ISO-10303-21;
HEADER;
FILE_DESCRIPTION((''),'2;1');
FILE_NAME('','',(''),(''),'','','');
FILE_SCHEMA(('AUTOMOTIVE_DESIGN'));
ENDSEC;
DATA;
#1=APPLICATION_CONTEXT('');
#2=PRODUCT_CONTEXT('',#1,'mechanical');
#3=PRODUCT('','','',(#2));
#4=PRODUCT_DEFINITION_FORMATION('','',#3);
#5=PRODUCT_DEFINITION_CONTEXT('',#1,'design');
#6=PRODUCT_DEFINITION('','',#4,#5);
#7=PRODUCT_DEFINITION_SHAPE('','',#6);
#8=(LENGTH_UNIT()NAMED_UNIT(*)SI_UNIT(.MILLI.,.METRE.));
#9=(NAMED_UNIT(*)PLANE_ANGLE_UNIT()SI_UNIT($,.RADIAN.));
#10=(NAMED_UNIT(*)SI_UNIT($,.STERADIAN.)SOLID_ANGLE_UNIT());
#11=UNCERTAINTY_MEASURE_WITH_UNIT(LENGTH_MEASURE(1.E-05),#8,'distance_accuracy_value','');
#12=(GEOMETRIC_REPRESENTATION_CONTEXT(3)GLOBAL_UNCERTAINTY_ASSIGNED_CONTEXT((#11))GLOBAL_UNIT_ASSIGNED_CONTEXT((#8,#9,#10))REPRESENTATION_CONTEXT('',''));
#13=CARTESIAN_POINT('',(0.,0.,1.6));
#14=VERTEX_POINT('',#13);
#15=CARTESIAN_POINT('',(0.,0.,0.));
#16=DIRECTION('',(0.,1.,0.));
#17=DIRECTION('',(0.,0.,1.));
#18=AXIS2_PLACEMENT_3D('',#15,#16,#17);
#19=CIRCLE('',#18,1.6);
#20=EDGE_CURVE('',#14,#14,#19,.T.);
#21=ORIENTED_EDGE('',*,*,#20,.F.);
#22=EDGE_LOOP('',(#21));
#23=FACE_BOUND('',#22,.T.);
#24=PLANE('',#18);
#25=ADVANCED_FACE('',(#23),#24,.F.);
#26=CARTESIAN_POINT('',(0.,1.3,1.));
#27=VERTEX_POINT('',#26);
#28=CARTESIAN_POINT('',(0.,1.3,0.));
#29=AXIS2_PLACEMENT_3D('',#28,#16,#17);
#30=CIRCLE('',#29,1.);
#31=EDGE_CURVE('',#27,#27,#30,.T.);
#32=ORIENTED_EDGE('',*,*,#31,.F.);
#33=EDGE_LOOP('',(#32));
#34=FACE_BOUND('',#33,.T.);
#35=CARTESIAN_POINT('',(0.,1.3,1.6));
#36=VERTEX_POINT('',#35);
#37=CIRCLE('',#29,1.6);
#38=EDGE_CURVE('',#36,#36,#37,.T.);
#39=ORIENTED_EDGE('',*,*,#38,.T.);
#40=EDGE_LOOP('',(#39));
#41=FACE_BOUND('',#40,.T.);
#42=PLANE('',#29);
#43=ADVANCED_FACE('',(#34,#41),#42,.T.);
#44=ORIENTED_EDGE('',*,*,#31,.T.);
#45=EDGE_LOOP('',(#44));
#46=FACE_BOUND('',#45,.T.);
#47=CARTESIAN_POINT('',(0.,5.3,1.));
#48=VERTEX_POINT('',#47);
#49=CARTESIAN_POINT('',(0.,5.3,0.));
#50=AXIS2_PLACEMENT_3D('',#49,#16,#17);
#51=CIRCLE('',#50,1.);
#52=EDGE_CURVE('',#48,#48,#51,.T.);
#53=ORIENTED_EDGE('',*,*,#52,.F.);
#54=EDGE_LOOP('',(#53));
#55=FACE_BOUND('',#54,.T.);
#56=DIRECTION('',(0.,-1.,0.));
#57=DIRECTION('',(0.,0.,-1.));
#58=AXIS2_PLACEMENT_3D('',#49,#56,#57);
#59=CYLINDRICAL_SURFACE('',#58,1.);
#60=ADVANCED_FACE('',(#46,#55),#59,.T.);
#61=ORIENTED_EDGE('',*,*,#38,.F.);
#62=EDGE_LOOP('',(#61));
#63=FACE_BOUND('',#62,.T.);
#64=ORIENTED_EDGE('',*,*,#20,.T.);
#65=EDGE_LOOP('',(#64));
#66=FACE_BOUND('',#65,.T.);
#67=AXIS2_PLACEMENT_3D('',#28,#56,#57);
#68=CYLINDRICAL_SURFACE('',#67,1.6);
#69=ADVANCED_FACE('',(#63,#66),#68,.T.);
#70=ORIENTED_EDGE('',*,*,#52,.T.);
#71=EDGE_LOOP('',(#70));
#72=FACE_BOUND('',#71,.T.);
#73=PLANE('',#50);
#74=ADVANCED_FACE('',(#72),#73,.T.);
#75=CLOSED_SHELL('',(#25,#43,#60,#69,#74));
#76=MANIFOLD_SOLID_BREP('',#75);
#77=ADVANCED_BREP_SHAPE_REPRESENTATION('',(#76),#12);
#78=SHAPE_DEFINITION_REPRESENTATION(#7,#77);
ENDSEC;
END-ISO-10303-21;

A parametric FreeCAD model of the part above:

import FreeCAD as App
import Part
import Sketcher

doc = App.newDocument("Part")
body = doc.addObject("PartDesign::Body", "Body")

sketch1 = doc.addObject("Sketcher::SketchObject", "Sketch")
body.addObject(sketch1)
sketch1.AttachmentSupport = (doc.XZ_Plane, [""])
sketch1.MapMode = "FlatFace"
sketch1.addGeometry(Part.Circle(App.Vector(0, 0, 0), App.Vector(0, 0, 1), 1.6), False)
sketch1.addConstraint(Sketcher.Constraint("Coincident", 0, 3, -1, 1))
sketch1.addConstraint(Sketcher.Constraint("Diameter", 0, 3.2))
pad1 = doc.addObject("PartDesign::Pad", "Pad")
body.addObject(pad1)
pad1.Profile = sketch1
pad1.Length = 1.3
pad1.Reversed = True

sketch2 = doc.addObject("Sketcher::SketchObject", "Sketch001")
body.addObject(sketch2)
sketch2.AttachmentSupport = (doc.XZ_Plane, [""])
sketch2.MapMode = "FlatFace"
sketch2.AttachmentOffset = App.Placement(App.Vector(0, 0, -1.3), App.Rotation())
sketch2.addGeometry(Part.Circle(App.Vector(0, 0, 0), App.Vector(0, 0, 1), 1), False)
sketch2.addConstraint(Sketcher.Constraint("Coincident", 0, 3, -1, 1))
sketch2.addConstraint(Sketcher.Constraint("Diameter", 0, 2.0))
pad2 = doc.addObject("PartDesign::Pad", "Pad001")
body.addObject(pad2)
pad2.Profile = sketch2
pad2.Length = 4
pad2.Reversed = True

doc.recompute()
